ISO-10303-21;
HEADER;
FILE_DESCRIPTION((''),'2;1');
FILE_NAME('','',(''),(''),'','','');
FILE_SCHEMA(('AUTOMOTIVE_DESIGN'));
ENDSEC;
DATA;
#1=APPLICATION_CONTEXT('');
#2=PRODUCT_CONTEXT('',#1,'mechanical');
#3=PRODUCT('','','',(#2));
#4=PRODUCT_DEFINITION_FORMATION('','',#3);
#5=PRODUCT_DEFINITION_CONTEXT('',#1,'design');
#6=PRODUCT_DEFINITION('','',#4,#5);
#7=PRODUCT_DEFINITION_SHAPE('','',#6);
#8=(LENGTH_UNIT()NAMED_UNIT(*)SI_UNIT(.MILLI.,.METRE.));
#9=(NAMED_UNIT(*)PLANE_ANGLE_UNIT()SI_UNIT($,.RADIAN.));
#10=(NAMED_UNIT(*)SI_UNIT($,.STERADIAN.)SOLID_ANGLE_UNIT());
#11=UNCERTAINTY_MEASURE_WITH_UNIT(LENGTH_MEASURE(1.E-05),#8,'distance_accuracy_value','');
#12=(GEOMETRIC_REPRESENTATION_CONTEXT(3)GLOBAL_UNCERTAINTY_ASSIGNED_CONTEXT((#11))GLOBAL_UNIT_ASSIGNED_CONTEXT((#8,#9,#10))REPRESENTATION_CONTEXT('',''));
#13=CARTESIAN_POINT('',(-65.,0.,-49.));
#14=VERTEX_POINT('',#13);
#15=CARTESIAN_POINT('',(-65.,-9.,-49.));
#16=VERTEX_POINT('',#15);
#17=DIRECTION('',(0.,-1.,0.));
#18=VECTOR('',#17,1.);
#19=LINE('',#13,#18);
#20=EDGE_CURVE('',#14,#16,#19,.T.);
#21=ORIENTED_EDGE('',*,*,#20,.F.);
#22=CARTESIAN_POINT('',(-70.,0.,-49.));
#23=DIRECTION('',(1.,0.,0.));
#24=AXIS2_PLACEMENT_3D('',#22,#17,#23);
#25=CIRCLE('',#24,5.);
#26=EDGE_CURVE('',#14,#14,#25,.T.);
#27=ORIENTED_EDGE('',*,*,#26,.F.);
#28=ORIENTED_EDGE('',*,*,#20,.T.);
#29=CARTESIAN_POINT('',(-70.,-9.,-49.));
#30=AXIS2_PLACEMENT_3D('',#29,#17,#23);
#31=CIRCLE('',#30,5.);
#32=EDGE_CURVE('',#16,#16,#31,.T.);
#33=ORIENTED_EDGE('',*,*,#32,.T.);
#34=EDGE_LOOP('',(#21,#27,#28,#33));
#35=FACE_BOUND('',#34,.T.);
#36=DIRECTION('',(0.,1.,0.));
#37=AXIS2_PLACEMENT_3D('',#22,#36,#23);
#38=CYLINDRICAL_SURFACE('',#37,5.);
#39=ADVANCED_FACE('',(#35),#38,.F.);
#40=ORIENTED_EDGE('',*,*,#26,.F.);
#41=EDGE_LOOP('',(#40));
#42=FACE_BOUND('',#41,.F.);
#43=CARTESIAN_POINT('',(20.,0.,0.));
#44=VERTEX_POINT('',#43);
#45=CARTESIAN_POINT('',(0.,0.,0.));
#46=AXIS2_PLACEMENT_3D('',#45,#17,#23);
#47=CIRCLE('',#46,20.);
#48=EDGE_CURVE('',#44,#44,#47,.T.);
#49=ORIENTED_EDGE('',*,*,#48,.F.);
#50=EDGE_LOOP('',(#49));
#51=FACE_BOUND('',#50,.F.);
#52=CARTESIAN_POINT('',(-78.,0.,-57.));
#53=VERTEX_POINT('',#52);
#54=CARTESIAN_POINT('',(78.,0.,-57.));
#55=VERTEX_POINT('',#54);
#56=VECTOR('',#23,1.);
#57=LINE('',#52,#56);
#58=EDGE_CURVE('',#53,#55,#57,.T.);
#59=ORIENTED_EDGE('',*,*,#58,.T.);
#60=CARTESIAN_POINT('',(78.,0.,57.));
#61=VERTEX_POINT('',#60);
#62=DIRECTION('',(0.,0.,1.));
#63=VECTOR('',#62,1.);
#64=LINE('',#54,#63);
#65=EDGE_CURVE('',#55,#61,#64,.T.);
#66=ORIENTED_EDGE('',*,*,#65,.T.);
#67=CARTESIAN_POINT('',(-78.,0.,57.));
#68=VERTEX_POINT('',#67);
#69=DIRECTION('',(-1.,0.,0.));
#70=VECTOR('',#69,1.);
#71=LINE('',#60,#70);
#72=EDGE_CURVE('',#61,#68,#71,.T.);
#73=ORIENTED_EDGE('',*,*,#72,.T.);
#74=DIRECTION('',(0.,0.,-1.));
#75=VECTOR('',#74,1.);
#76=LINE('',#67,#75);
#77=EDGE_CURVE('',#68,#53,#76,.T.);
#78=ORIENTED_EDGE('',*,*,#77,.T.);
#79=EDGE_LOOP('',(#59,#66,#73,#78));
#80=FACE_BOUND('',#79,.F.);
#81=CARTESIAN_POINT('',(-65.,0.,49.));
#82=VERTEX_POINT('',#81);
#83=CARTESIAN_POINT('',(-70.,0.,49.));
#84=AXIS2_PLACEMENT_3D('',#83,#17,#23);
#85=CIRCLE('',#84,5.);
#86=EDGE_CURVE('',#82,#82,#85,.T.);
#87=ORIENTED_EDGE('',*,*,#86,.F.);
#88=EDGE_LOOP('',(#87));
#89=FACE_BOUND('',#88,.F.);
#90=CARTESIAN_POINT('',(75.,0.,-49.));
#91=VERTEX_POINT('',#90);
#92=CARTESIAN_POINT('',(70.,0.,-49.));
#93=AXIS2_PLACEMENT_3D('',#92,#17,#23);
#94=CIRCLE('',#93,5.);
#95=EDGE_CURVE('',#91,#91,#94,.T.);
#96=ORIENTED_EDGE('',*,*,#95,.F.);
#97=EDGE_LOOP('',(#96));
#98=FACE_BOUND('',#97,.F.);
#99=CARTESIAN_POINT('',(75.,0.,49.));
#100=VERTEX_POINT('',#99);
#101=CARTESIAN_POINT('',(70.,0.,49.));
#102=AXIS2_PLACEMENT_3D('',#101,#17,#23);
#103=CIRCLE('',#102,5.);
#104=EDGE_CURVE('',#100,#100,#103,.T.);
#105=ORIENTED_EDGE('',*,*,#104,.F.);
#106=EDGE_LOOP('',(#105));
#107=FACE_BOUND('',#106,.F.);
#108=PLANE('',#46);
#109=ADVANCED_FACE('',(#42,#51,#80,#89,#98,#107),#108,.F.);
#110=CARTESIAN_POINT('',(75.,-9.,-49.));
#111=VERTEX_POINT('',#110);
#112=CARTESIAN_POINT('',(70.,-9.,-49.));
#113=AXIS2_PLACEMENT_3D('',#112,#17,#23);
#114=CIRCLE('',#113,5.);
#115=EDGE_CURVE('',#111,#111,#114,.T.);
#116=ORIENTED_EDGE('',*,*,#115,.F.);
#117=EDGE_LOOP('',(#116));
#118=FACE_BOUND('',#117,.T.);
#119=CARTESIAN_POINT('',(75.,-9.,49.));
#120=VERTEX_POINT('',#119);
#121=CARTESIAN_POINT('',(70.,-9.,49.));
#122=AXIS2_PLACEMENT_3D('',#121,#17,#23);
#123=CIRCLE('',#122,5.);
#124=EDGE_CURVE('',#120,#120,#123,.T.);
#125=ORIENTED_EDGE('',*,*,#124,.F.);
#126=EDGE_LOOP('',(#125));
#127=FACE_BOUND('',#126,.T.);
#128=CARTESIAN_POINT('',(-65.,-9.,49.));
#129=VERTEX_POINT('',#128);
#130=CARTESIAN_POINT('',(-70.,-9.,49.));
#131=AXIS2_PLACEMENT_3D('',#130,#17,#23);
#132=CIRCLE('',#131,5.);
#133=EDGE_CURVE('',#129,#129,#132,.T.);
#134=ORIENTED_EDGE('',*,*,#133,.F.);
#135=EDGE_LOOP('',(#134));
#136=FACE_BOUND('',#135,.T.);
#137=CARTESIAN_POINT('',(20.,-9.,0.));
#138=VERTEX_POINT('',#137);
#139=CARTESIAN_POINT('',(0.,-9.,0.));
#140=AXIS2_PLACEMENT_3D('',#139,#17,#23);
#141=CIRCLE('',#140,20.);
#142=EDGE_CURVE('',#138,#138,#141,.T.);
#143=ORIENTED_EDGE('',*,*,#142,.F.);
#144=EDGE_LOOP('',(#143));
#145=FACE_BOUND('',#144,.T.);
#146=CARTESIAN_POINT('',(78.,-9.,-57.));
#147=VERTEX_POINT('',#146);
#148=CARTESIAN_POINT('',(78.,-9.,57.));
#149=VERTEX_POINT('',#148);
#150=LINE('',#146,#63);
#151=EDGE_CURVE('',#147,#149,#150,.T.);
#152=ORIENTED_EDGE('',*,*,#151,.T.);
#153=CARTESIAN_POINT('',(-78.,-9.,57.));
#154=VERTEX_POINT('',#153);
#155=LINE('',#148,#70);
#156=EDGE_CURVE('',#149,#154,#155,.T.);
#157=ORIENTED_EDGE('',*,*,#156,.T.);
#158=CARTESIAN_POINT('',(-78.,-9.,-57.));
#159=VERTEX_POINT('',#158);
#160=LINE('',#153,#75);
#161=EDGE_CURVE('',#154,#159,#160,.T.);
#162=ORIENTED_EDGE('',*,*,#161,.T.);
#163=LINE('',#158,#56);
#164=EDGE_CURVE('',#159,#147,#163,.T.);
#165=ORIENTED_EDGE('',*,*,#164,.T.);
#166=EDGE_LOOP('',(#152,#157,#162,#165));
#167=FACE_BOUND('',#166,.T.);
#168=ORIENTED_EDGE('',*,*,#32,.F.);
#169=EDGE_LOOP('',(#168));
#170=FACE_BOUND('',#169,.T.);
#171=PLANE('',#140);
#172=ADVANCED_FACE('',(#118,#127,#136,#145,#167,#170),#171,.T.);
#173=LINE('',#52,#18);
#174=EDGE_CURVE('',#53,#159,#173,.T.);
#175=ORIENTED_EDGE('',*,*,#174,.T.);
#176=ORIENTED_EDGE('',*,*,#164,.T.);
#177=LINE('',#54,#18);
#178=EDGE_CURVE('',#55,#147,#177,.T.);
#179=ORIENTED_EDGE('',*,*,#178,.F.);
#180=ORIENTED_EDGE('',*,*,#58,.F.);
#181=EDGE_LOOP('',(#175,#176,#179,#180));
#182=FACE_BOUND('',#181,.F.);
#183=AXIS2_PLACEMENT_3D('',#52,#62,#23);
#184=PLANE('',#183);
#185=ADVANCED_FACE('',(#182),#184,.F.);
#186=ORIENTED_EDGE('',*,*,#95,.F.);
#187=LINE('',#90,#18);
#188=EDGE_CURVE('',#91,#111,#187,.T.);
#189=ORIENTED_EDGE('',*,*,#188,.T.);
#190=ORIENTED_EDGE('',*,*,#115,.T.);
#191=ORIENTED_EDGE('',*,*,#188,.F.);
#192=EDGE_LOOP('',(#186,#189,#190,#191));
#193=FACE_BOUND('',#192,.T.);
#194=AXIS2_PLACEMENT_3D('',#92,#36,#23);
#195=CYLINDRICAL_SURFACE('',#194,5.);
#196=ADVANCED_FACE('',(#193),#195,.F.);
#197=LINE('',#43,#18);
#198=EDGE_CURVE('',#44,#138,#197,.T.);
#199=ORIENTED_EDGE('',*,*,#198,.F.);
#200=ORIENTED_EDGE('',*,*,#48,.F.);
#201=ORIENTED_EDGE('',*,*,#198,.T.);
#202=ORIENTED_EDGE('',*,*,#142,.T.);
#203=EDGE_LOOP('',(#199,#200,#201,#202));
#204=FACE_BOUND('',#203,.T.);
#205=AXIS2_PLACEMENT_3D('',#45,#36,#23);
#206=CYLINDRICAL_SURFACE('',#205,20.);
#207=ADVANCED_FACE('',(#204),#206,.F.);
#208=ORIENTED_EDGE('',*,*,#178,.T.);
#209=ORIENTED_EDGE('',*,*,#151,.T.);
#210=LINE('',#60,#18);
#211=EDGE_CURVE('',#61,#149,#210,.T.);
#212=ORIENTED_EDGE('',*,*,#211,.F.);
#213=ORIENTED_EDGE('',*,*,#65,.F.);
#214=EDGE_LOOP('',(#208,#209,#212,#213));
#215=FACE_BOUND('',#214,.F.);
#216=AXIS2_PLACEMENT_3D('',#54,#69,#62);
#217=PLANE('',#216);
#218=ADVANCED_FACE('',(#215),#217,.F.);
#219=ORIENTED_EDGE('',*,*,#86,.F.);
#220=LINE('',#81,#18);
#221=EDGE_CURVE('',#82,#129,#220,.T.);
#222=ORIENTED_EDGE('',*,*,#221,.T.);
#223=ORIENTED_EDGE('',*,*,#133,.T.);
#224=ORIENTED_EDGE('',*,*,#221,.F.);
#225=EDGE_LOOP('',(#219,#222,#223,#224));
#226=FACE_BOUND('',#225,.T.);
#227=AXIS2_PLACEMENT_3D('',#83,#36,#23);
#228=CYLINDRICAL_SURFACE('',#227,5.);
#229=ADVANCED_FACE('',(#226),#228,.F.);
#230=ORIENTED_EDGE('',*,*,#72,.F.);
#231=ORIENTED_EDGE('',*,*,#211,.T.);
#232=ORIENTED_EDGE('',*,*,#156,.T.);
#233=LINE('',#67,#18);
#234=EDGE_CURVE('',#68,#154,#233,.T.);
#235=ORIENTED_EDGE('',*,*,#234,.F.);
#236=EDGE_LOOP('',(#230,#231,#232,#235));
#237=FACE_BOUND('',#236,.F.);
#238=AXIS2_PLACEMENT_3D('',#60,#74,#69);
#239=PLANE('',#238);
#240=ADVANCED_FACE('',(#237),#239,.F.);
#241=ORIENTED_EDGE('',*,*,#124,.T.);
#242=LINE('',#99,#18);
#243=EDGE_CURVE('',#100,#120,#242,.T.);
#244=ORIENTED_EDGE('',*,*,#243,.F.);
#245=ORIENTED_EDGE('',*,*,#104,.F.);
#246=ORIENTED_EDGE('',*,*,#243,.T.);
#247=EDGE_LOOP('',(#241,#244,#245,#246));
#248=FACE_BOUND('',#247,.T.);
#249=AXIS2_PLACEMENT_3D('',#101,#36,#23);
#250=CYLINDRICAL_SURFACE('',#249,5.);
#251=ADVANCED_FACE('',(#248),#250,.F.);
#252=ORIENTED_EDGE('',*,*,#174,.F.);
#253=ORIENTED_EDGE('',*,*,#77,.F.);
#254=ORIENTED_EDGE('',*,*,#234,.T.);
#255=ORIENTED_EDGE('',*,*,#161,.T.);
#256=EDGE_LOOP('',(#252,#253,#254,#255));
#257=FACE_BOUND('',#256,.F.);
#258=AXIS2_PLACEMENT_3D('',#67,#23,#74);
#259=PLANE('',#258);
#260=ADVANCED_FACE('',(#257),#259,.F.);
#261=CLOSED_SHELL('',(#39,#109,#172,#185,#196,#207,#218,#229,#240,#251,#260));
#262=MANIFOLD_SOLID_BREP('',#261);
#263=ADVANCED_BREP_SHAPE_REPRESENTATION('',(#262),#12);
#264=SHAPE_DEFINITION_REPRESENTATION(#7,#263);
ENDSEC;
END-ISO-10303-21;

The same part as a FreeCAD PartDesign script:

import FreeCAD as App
import Part
import Sketcher

V = App.Vector
Q = App.Units.Quantity

doc = App.newDocument("Part")
params = doc.addObject("Spreadsheet::Sheet", "Params")
for row, (alias, value) in enumerate([
    ("sketch1_diameter", "10 mm"),
    ("sketch1_diameter2", "40 mm"),
    ("sketch1_width", "156 mm"),
    ("sketch1_height", "114 mm"),
    ("pad1_length", "9 mm"),
], start=1):
    params.set(f"A{row}", alias)
    params.set(f"B{row}", "=" + value)
    params.setAlias(f"B{row}", alias)

body = doc.addObject("PartDesign::Body", "Body")

# Sketch on XZ plane
sketch1 = body.newObject("Sketcher::SketchObject", "Sketch")
sketch1.AttachmentSupport = (doc.getObject("XZ_Plane"), [""])
sketch1.MapMode = "FlatFace"
sketch1.addGeometry([
    Part.LineSegment(V(-78, -57, 0), V(78, -57, 0)),  # 0
    Part.LineSegment(V(78, -57, 0), V(78, 57, 0)),  # 1
    Part.LineSegment(V(78, 57, 0), V(-78, 57, 0)),  # 2
    Part.LineSegment(V(-78, 57, 0), V(-78, -57, 0)),  # 3
    Part.Circle(V(-70, -49, 0), V(0, 0, 1), 5),  # 4
    Part.Circle(V(70, -49, 0), V(0, 0, 1), 5),  # 5
    Part.Circle(V(-70, 49, 0), V(0, 0, 1), 5),  # 6
    Part.Circle(V(0, 0, 0), V(0, 0, 1), 20),  # 7
    Part.Circle(V(70, 49, 0), V(0, 0, 1), 5),  # 8
], False)
sketch1.addConstraint([
    Sketcher.Constraint("Coincident", 0, 2, 1, 1),
    Sketcher.Constraint("Coincident", 1, 2, 2, 1),
    Sketcher.Constraint("Coincident", 2, 2, 3, 1),
    Sketcher.Constraint("Coincident", 3, 2, 0, 1),
    Sketcher.Constraint("Horizontal", 0),
    Sketcher.Constraint("Vertical", 1),
    Sketcher.Constraint("Horizontal", 2),
    Sketcher.Constraint("Vertical", 3),
    Sketcher.Constraint("Coincident", 7, 3, -1, 1),
    Sketcher.Constraint("Equal", 4, 5),
    Sketcher.Constraint("Equal", 5, 6),
    Sketcher.Constraint("Equal", 6, 8),
    Sketcher.Constraint("Symmetric", 5, 3, 6, 3, -1, 1),
    Sketcher.Constraint("Symmetric", 4, 3, 8, 3, -1, 1),
    Sketcher.Constraint("Symmetric", 0, 2, 2, 2, -1, 1),
    Sketcher.Constraint("Symmetric", 4, 3, 5, 3, -2),
    Sketcher.Constraint("Diameter", 4, Q("10 mm")),
    Sketcher.Constraint("Diameter", 7, Q("40 mm")),
    Sketcher.Constraint("DistanceX", 0, 1, 0, 2, Q("156 mm")),
    Sketcher.Constraint("DistanceY", 1, 1, 1, 2, Q("114 mm")),
    Sketcher.Constraint("DistanceX", 4, 3, -1, 1, Q("70 mm")),
    Sketcher.Constraint("DistanceY", 4, 3, -1, 1, Q("49 mm")),
])
sketch1.setExpression("Constraints[16]", "Params.sketch1_diameter")
sketch1.setExpression("Constraints[17]", "Params.sketch1_diameter2")
sketch1.setExpression("Constraints[18]", "Params.sketch1_width")
sketch1.setExpression("Constraints[19]", "Params.sketch1_height")
pad1 = body.newObject("PartDesign::Pad", "Pad")
pad1.Profile = sketch1
pad1.setExpression("Length", "Params.pad1_length")

doc.recompute()
